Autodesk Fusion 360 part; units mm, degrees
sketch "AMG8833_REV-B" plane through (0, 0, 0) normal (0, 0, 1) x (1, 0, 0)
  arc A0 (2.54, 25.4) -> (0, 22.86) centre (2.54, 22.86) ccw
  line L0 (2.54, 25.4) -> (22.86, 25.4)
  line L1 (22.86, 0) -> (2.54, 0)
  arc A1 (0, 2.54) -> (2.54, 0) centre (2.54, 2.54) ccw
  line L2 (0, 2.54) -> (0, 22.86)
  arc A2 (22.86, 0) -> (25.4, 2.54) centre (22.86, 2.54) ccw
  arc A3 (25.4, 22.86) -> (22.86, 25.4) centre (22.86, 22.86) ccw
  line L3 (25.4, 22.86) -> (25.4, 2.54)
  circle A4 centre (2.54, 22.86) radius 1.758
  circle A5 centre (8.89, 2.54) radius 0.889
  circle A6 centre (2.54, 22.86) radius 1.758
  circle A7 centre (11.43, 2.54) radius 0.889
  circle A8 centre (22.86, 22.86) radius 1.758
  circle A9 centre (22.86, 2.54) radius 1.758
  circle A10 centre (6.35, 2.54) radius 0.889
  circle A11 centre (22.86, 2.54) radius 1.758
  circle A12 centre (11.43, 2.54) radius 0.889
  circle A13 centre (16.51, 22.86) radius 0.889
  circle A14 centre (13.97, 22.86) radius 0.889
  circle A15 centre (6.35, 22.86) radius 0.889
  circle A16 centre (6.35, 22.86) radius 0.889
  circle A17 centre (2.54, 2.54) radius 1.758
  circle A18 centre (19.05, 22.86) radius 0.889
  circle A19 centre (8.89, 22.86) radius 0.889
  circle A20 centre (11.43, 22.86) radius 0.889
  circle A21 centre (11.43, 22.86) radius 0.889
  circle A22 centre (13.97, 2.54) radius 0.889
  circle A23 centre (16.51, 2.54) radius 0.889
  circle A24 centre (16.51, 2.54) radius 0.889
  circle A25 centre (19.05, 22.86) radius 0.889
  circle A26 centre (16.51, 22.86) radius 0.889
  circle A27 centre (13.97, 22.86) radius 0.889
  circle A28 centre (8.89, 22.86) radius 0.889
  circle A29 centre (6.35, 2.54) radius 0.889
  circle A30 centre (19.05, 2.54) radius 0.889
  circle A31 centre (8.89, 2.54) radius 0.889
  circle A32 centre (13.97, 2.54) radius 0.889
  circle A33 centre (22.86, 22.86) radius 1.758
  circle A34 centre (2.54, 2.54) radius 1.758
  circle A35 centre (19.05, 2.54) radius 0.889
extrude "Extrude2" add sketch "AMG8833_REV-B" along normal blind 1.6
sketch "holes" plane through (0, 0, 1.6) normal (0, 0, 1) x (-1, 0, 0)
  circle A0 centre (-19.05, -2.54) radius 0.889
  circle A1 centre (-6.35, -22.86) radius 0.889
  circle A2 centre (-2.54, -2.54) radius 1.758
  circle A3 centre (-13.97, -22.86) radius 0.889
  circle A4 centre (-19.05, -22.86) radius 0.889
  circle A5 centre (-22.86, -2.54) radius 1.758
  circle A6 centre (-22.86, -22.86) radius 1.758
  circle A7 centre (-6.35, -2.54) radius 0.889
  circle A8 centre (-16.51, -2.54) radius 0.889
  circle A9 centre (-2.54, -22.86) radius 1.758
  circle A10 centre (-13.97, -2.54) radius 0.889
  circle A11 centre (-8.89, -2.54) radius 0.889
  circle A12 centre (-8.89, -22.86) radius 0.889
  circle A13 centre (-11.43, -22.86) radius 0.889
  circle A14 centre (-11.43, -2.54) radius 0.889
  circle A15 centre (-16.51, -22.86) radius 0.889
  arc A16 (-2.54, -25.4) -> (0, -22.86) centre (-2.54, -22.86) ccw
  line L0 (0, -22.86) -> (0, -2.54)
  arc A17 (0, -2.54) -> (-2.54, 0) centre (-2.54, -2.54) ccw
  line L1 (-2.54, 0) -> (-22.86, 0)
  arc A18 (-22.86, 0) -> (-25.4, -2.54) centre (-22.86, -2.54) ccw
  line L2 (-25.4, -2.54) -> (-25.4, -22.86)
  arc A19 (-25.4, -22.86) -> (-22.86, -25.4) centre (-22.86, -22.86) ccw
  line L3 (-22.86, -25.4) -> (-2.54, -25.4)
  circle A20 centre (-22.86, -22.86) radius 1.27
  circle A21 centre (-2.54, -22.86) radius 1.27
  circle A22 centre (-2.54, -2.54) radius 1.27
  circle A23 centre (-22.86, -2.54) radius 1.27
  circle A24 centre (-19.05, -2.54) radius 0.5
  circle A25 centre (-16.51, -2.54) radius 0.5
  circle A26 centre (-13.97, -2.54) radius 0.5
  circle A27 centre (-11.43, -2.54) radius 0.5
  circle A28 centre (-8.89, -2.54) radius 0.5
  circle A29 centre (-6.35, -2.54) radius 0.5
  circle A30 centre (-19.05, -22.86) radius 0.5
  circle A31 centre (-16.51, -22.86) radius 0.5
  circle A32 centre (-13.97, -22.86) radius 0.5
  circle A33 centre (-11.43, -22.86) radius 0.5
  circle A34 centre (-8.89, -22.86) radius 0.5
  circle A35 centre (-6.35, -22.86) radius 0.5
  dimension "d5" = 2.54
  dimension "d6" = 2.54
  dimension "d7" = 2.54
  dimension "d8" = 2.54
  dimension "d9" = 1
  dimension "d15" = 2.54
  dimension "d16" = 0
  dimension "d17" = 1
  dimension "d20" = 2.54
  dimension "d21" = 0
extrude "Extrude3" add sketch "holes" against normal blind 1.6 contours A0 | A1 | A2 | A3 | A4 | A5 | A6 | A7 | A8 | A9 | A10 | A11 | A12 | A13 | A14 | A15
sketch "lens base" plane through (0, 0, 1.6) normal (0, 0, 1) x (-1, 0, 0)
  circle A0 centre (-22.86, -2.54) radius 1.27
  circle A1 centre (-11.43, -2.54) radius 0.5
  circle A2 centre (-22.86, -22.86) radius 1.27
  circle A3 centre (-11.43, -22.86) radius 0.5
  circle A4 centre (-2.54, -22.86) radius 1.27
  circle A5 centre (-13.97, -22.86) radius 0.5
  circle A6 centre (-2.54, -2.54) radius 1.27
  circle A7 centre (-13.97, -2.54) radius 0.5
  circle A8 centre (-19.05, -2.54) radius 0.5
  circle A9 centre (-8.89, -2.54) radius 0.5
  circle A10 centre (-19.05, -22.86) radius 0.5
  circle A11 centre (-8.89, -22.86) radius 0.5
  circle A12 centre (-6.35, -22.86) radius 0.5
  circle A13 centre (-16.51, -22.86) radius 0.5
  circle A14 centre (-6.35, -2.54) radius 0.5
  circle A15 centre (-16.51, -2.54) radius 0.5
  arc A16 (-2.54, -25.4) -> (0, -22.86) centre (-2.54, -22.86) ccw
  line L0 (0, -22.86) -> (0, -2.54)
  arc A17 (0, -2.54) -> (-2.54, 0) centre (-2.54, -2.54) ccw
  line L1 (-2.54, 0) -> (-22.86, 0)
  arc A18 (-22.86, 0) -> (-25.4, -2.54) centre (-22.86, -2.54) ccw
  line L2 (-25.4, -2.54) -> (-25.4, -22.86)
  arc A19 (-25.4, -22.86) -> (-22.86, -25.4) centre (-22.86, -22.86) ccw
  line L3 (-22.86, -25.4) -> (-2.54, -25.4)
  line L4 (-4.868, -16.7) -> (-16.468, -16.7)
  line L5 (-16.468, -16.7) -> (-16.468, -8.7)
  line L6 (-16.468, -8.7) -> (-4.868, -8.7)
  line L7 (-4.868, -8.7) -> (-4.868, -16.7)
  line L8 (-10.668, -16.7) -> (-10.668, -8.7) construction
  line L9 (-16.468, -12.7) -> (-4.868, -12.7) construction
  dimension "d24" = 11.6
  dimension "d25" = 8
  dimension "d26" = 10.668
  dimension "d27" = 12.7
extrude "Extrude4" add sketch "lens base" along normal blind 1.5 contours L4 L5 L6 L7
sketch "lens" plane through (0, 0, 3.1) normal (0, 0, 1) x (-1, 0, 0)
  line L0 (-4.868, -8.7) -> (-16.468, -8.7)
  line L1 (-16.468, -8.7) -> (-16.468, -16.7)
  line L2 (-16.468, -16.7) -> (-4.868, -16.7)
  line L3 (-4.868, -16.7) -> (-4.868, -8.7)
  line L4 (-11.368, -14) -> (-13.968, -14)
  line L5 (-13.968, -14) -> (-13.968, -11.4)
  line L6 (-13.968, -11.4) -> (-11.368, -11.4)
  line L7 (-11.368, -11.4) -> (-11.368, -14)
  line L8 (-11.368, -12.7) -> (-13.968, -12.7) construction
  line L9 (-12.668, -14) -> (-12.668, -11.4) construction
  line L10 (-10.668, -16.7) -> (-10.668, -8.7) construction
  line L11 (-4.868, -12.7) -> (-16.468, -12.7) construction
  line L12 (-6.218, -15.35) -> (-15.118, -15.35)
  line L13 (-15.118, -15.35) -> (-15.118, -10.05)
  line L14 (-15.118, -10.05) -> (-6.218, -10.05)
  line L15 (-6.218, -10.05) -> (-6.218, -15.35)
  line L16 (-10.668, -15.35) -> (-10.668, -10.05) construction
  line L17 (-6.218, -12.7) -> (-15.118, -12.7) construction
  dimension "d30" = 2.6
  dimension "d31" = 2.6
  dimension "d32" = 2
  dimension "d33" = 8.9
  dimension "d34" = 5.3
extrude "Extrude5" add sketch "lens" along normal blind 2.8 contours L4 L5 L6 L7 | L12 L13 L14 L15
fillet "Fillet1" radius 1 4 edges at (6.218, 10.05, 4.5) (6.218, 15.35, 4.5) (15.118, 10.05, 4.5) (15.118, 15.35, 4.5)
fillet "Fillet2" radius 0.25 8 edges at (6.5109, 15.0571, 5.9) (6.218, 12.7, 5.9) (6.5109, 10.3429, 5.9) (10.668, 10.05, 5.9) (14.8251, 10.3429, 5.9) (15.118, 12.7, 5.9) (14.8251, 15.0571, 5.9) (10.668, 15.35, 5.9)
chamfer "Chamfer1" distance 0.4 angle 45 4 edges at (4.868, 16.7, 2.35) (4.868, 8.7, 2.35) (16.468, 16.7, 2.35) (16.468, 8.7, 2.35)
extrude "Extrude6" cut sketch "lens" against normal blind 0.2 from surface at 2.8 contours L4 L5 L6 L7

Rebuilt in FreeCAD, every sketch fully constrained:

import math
import FreeCAD as App
import Part
import Sketcher
from FreeCAD import Vector
Q = App.Units.Quantity


def edges_at(feature, points):
    """Names of the edges that pass closest to the given points."""
    edges = feature.Shape.Edges
    near = lambda p: min(range(len(edges)), key=lambda i: edges[i].distToShape(Part.Vertex(*p))[0])
    return sorted({f"Edge{near(p) + 1}" for p in points})


def add_polygon(sketch, points):
    """Adds a closed chain of lines whose ends are joined by coincident constraints."""
    first, n = sketch.GeometryCount, len(points)
    for a, b in zip(points, points[1:] + points[:1]):
        sketch.addGeometry(Part.LineSegment(App.Vector(*a, 0), App.Vector(*b, 0)), False)
    for i in range(n):
        sketch.addConstraint(Sketcher.Constraint("Coincident", first + i, 2, first + (i + 1) % n, 1))

doc = App.newDocument("Part")
body = doc.addObject("PartDesign::Body", "Body")

# Sketch on XY plane
sketch1 = doc.addObject("Sketcher::SketchObject", "Sketch")
body.addObject(sketch1)
sketch1.AttachmentSupport = (doc.XY_Plane, [""])
sketch1.MapMode = "FlatFace"
sketch1.addGeometry([
    Part.LineSegment(Vector(22.9, 25.4, 0), Vector(2.5, 25.4, 0)),  # 0
    Part.ArcOfCircle(Part.Circle(Vector(2.5, 22.9, 0), Vector(0, 0, 1), 2.5), math.radians(90), math.radians(180)),  # 1
    Part.LineSegment(Vector(0, 22.9, 0), Vector(0, 2.5, 0)),  # 2
    Part.ArcOfCircle(Part.Circle(Vector(2.5, 2.5, 0), Vector(0, 0, 1), 2.5), math.radians(180), math.radians(270)),  # 3
    Part.LineSegment(Vector(2.5, 0, 0), Vector(22.9, 0, 0)),  # 4
    Part.ArcOfCircle(Part.Circle(Vector(22.9, 2.5, 0), Vector(0, 0, 1), 2.5), math.radians(-90), math.radians(0)),  # 5
    Part.LineSegment(Vector(25.4, 2.5, 0), Vector(25.4, 22.9, 0)),  # 6
    Part.ArcOfCircle(Part.Circle(Vector(22.9, 22.9, 0), Vector(0, 0, 1), 2.5), math.radians(0), math.radians(90)),  # 7
    Part.Circle(Vector(2.5, 2.5, 0), Vector(0, 0, 1), 1.8),  # 8
    Part.Circle(Vector(6.3, 2.5, 0), Vector(0, 0, 1), 0.9),  # 9
    Part.Circle(Vector(8.9, 2.5, 0), Vector(0, 0, 1), 0.9),  # 10
    Part.Circle(Vector(11.4, 2.5, 0), Vector(0, 0, 1), 0.9),  # 11
    Part.Circle(Vector(14, 2.5, 0), Vector(0, 0, 1), 0.9),  # 12
    Part.Circle(Vector(16.5, 2.5, 0), Vector(0, 0, 1), 0.9),  # 13
    Part.Circle(Vector(19.1, 2.5, 0), Vector(0, 0, 1), 0.9),  # 14
    Part.Circle(Vector(22.9, 2.5, 0), Vector(0, 0, 1), 1.8),  # 15
    Part.Circle(Vector(2.5, 22.9, 0), Vector(0, 0, 1), 1.8),  # 16
    Part.Circle(Vector(6.3, 22.9, 0), Vector(0, 0, 1), 0.9),  # 17
    Part.Circle(Vector(8.9, 22.9, 0), Vector(0, 0, 1), 0.9),  # 18
    Part.Circle(Vector(11.4, 22.9, 0), Vector(0, 0, 1), 0.9),  # 19
    Part.Circle(Vector(14, 22.9, 0), Vector(0, 0, 1), 0.9),  # 20
    Part.Circle(Vector(16.5, 22.9, 0), Vector(0, 0, 1), 0.9),  # 21
    Part.Circle(Vector(19.1, 22.9, 0), Vector(0, 0, 1), 0.9),  # 22
    Part.Circle(Vector(22.9, 22.9, 0), Vector(0, 0, 1), 1.8),  # 23
], False)
sketch1.addConstraint([
    Sketcher.Constraint("Tangent", 0, 2, 1, 1),
    Sketcher.Constraint("Tangent", 1, 2, 2, 1),
    Sketcher.Constraint("Tangent", 2, 2, 3, 1),
    Sketcher.Constraint("Tangent", 3, 2, 4, 1),
    Sketcher.Constraint("Tangent", 4, 2, 5, 1),
    Sketcher.Constraint("Tangent", 5, 2, 6, 1),
    Sketcher.Constraint("Tangent", 6, 2, 7, 1),
    Sketcher.Constraint("Tangent", 7, 2, 0, 1),
    Sketcher.Constraint("Horizontal", 0),
    Sketcher.Constraint("Vertical", 2),
    Sketcher.Constraint("Horizontal", 4),
    Sketcher.Constraint("Vertical", 6),
    Sketcher.Constraint("Coincident", 8, 3, 3, 3),
    Sketcher.Constraint("Coincident", 15, 3, 5, 3),
    Sketcher.Constraint("Coincident", 16, 3, 1, 3),
    Sketcher.Constraint("Coincident", 23, 3, 7, 3),
    Sketcher.Constraint("Equal", 1, 3),
    Sketcher.Constraint("Equal", 3, 5),
    Sketcher.Constraint("Equal", 5, 7),
    Sketcher.Constraint("Equal", 9, 10),
    Sketcher.Constraint("Equal", 10, 11),
    Sketcher.Constraint("Equal", 11, 12),
    Sketcher.Constraint("Equal", 12, 13),
    Sketcher.Constraint("Equal", 13, 14),
    Sketcher.Constraint("Equal", 8, 15),
    Sketcher.Constraint("Equal", 15, 16),
    Sketcher.Constraint("Equal", 14, 17),
    Sketcher.Constraint("Equal", 17, 18),
    Sketcher.Constraint("Equal", 18, 19),
    Sketcher.Constraint("Equal", 19, 20),
    Sketcher.Constraint("Equal", 20, 21),
    Sketcher.Constraint("Equal", 21, 22),
    Sketcher.Constraint("Equal", 16, 23),
    Sketcher.Constraint("PointOnObject", 1, 2, -2),
    Sketcher.Constraint("PointOnObject", 3, 2, -1),
    Sketcher.Constraint("Horizontal", 8, 3, 9, 3),
    Sketcher.Constraint("Horizontal", 9, 3, 10, 3),
    Sketcher.Constraint("Horizontal", 10, 3, 11, 3),
    Sketcher.Constraint("Horizontal", 11, 3, 12, 3),
    Sketcher.Constraint("Horizontal", 12, 3, 13, 3),
    Sketcher.Constraint("Horizontal", 13, 3, 14, 3),
    Sketcher.Constraint("Horizontal", 16, 3, 17, 3),
    Sketcher.Constraint("Horizontal", 17, 3, 18, 3),
    Sketcher.Constraint("Horizontal", 18, 3, 19, 3),
    Sketcher.Constraint("Horizontal", 19, 3, 20, 3),
    Sketcher.Constraint("Horizontal", 20, 3, 21, 3),
    Sketcher.Constraint("Horizontal", 21, 3, 22, 3),
    Sketcher.Constraint("Vertical", 9, 3, 17, 3),
    Sketcher.Constraint("Vertical", 10, 3, 18, 3),
    Sketcher.Constraint("Vertical", 11, 3, 19, 3),
    Sketcher.Constraint("Vertical", 12, 3, 20, 3),
    Sketcher.Constraint("Vertical", 13, 3, 21, 3),
    Sketcher.Constraint("Vertical", 14, 3, 22, 3),
    Sketcher.Constraint("Equal", 4, 2),
    Sketcher.Constraint("Radius", 1, Q("2.54 mm")),
    Sketcher.Constraint("Diameter", 8, Q("3.516 mm")),
    Sketcher.Constraint("Diameter", 9, Q("1.778 mm")),
    Sketcher.Constraint("DistanceX", 0, 2, 0, 1, Q("20.32 mm")),
    Sketcher.Constraint("DistanceX", -1, 1, 9, 3, Q("6.35 mm")),
    Sketcher.Constraint("DistanceX", -1, 1, 10, 3, Q("8.89 mm")),
    Sketcher.Constraint("DistanceX", -1, 1, 11, 3, Q("11.43 mm")),
    Sketcher.Constraint("DistanceX", -1, 1, 12, 3, Q("13.97 mm")),
    Sketcher.Constraint("DistanceX", -1, 1, 13, 3, Q("16.51 mm")),
    Sketcher.Constraint("DistanceX", -1, 1, 14, 3, Q("19.05 mm")),
])
pad1 = doc.addObject("PartDesign::Pad", "Pad")
body.addObject(pad1)
pad1.Profile = sketch1
pad1.Length = 1.6

# Sketch on XY plane
sketch2 = doc.addObject("Sketcher::SketchObject", "Sketch001")
body.addObject(sketch2)
sketch2.AttachmentSupport = (doc.XY_Plane, [""])
sketch2.MapMode = "FlatFace"
sketch2.AttachmentOffset = App.Placement(Vector(0, 0, 1.6), App.Rotation())
sketch2.addGeometry([
    Part.Circle(Vector(19.1, 2.5, 0), Vector(0, 0, 1), 0.9),  # 0
    Part.Circle(Vector(19.1, 2.5, 0), Vector(0, 0, 1), 0.5),  # 1
    Part.Circle(Vector(6.3, 22.9, 0), Vector(0, 0, 1), 0.9),  # 2
    Part.Circle(Vector(6.3, 22.9, 0), Vector(0, 0, 1), 0.5),  # 3
    Part.Circle(Vector(2.5, 2.5, 0), Vector(0, 0, 1), 1.8),  # 4
    Part.Circle(Vector(2.5, 2.5, 0), Vector(0, 0, 1), 1.3),  # 5
    Part.Circle(Vector(14, 22.9, 0), Vector(0, 0, 1), 0.9),  # 6
    Part.Circle(Vector(14, 22.9, 0), Vector(0, 0, 1), 0.5),  # 7
    Part.Circle(Vector(19.1, 22.9, 0), Vector(0, 0, 1), 0.9),  # 8
    Part.Circle(Vector(19.1, 22.9, 0), Vector(0, 0, 1), 0.5),  # 9
    Part.Circle(Vector(22.9, 2.5, 0), Vector(0, 0, 1), 1.8),  # 10
    Part.Circle(Vector(22.9, 2.5, 0), Vector(0, 0, 1), 1.3),  # 11
    Part.Circle(Vector(22.9, 22.9, 0), Vector(0, 0, 1), 1.8),  # 12
    Part.Circle(Vector(22.9, 22.9, 0), Vector(0, 0, 1), 1.3),  # 13
    Part.Circle(Vector(6.3, 2.5, 0), Vector(0, 0, 1), 0.9),  # 14
    Part.Circle(Vector(6.3, 2.5, 0), Vector(0, 0, 1), 0.5),  # 15
    Part.Circle(Vector(16.5, 2.5, 0), Vector(0, 0, 1), 0.9),  # 16
    Part.Circle(Vector(16.5, 2.5, 0), Vector(0, 0, 1), 0.5),  # 17
    Part.Circle(Vector(2.5, 22.9, 0), Vector(0, 0, 1), 1.8),  # 18
    Part.Circle(Vector(2.5, 22.9, 0), Vector(0, 0, 1), 1.3),  # 19
    Part.Circle(Vector(14, 2.5, 0), Vector(0, 0, 1), 0.9),  # 20
    Part.Circle(Vector(14, 2.5, 0), Vector(0, 0, 1), 0.5),  # 21
    Part.Circle(Vector(8.9, 2.5, 0), Vector(0, 0, 1), 0.9),  # 22
    Part.Circle(Vector(8.9, 2.5, 0), Vector(0, 0, 1), 0.5),  # 23
    Part.Circle(Vector(8.9, 22.9, 0), Vector(0, 0, 1), 0.9),  # 24
    Part.Circle(Vector(8.9, 22.9, 0), Vector(0, 0, 1), 0.5),  # 25
    Part.Circle(Vector(11.4, 22.9, 0), Vector(0, 0, 1), 0.9),  # 26
    Part.Circle(Vector(11.4, 22.9, 0), Vector(0, 0, 1), 0.5),  # 27
    Part.Circle(Vector(11.4, 2.5, 0), Vector(0, 0, 1), 0.9),  # 28
    Part.Circle(Vector(11.4, 2.5, 0), Vector(0, 0, 1), 0.5),  # 29
    Part.Circle(Vector(16.5, 22.9, 0), Vector(0, 0, 1), 0.9),  # 30
    Part.Circle(Vector(16.5, 22.9, 0), Vector(0, 0, 1), 0.5),  # 31
], False)
sketch2.addConstraint([
    Sketcher.Constraint("Coincident", 1, 3, 0, 3),
    Sketcher.Constraint("Coincident", 3, 3, 2, 3),
    Sketcher.Constraint("Coincident", 5, 3, 4, 3),
    Sketcher.Constraint("Coincident", 7, 3, 6, 3),
    Sketcher.Constraint("Coincident", 9, 3, 8, 3),
    Sketcher.Constraint("Coincident", 11, 3, 10, 3),
    Sketcher.Constraint("Coincident", 13, 3, 12, 3),
    Sketcher.Constraint("Coincident", 15, 3, 14, 3),
    Sketcher.Constraint("Coincident", 17, 3, 16, 3),
    Sketcher.Constraint("Coincident", 19, 3, 18, 3),
    Sketcher.Constraint("Coincident", 21, 3, 20, 3),
    Sketcher.Constraint("Coincident", 23, 3, 22, 3),
    Sketcher.Constraint("Coincident", 25, 3, 24, 3),
    Sketcher.Constraint("Coincident", 27, 3, 26, 3),
    Sketcher.Constraint("Coincident", 29, 3, 28, 3),
    Sketcher.Constraint("Coincident", 31, 3, 30, 3),
    Sketcher.Constraint("Equal", 0, 2),
    Sketcher.Constraint("Equal", 1, 3),
    Sketcher.Constraint("Equal", 2, 6),
    Sketcher.Constraint("Equal", 3, 7),
    Sketcher.Constraint("Equal", 6, 8),
    Sketcher.Constraint("Equal", 7, 9),
    Sketcher.Constraint("Equal", 4, 10),
    Sketcher.Constraint("Equal", 5, 11),
    Sketcher.Constraint("Equal", 10, 12),
    Sketcher.Constraint("Equal", 11, 13),
    Sketcher.Constraint("Equal", 8, 14),
    Sketcher.Constraint("Equal", 9, 15),
    Sketcher.Constraint("Equal", 14, 16),
    Sketcher.Constraint("Equal", 15, 17),
    Sketcher.Constraint("Equal", 12, 18),
    Sketcher.Constraint("Equal", 13, 19),
    Sketcher.Constraint("Equal", 16, 20),
    Sketcher.Constraint("Equal", 17, 21),
    Sketcher.Constraint("Equal", 20, 22),
    Sketcher.Constraint("Equal", 21, 23),
    Sketcher.Constraint("Equal", 22, 24),
    Sketcher.Constraint("Equal", 23, 25),
    Sketcher.Constraint("Equal", 24, 26),
    Sketcher.Constraint("Equal", 25, 27),
    Sketcher.Constraint("Equal", 26, 28),
    Sketcher.Constraint("Equal", 27, 29),
    Sketcher.Constraint("Equal", 28, 30),
    Sketcher.Constraint("Equal", 29, 31),
    Sketcher.Constraint("Horizontal", 1, 3, 4, 3),
    Sketcher.Constraint("Horizontal", 3, 3, 6, 3),
    Sketcher.Constraint("Horizontal", 7, 3, 8, 3),
    Sketcher.Constraint("Horizontal", 5, 3, 10, 3),
    Sketcher.Constraint("Horizontal", 9, 3, 12, 3),
    Sketcher.Constraint("Horizontal", 11, 3, 14, 3),
    Sketcher.Constraint("Horizontal", 15, 3, 16, 3),
    Sketcher.Constraint("Horizontal", 13, 3, 18, 3),
    Sketcher.Constraint("Horizontal", 17, 3, 20, 3),
    Sketcher.Constraint("Horizontal", 21, 3, 22, 3),
    Sketcher.Constraint("Horizontal", 19, 3, 24, 3),
    Sketcher.Constraint("Horizontal", 25, 3, 26, 3),
    Sketcher.Constraint("Horizontal", 23, 3, 28, 3),
    Sketcher.Constraint("Horizontal", 27, 3, 30, 3),
    Sketcher.Constraint("Vertical", 1, 3, 8, 3),
    Sketcher.Constraint("Vertical", 11, 3, 12, 3),
    Sketcher.Constraint("Vertical", 3, 3, 14, 3),
    Sketcher.Constraint("Vertical", 5, 3, 18, 3),
    Sketcher.Constraint("Vertical", 7, 3, 20, 3),
    Sketcher.Constraint("Vertical", 23, 3, 24, 3),
    Sketcher.Constraint("Vertical", 27, 3, 28, 3),
    Sketcher.Constraint("Vertical", 17, 3, 30, 3),
    Sketcher.Constraint("Diameter", 1, Q("1 mm")),
    Sketcher.Constraint("Diameter", 5, Q("2.54 mm")),
    Sketcher.Constraint("DistanceY", -1, 1, 0, 3, Q("2.54 mm")),
    Sketcher.Constraint("DistanceX", -1, 1, 4, 3, Q("2.54 mm")),
    Sketcher.Constraint("DistanceX", 16, 3, 0, 3, Q("2.54 mm")),
    Sketcher.Constraint("DistanceX", 20, 3, 16, 3, Q("2.54 mm")),
    Sketcher.Constraint("DistanceX", 14, 3, 22, 3, Q("2.54 mm")),
    Sketcher.Constraint("DistanceX", 24, 3, 26, 3, Q("2.54 mm")),
    Sketcher.Constraint("DistanceX", 26, 3, 6, 3, Q("2.54 mm")),
    Sketcher.Constraint("Diameter", 0, Q("1.778 mm")),
    Sketcher.Constraint("Diameter", 4, Q("3.516 mm")),
    Sketcher.Constraint("DistanceX", -1, 1, 0, 3, Q("19.05 mm")),
    Sketcher.Constraint("DistanceY", -1, 1, 2, 3, Q("22.86 mm")),
    Sketcher.Constraint("DistanceX", -1, 1, 10, 3, Q("22.86 mm")),
])
pad2 = doc.addObject("PartDesign::Pad", "Pad001")
body.addObject(pad2)
pad2.Profile = sketch2
pad2.Length = 1.6
pad2.Reversed = True

# Sketch on XY plane
sketch3 = doc.addObject("Sketcher::SketchObject", "Sketch002")
body.addObject(sketch3)
sketch3.AttachmentSupport = (doc.XY_Plane, [""])
sketch3.MapMode = "FlatFace"
sketch3.AttachmentOffset = App.Placement(Vector(0, 0, 1.6), App.Rotation())
add_polygon(sketch3, [(16, 17), (5, 17), (5, 9), (16, 9)])  # lines 0-3
sketch3.addConstraint([
    Sketcher.Constraint("Horizontal", 0),
    Sketcher.Constraint("Vertical", 1),
    Sketcher.Constraint("Horizontal", 2),
    Sketcher.Constraint("Vertical", 3),
    Sketcher.Constraint("DistanceY", 1, 2, 1, 1, Q("8 mm")),
    Sketcher.Constraint("DistanceX", 0, 2, 0, 1, Q("11.6 mm")),
    Sketcher.Constraint("DistanceY", -1, 1, 0, 2, Q("16.7 mm")),
    Sketcher.Constraint("DistanceX", -1, 1, 0, 2, Q("4.868 mm")),
])
pad3 = doc.addObject("PartDesign::Pad", "Pad002")
body.addObject(pad3)
pad3.Profile = sketch3
pad3.Length = 1.5

# Sketch on XY plane
sketch4 = doc.addObject("Sketcher::SketchObject", "Sketch003")
body.addObject(sketch4)
sketch4.AttachmentSupport = (doc.XY_Plane, [""])
sketch4.MapMode = "FlatFace"
sketch4.AttachmentOffset = App.Placement(Vector(0, 0, 3.1), App.Rotation())
add_polygon(sketch4, [(15, 15), (6, 15), (6, 10), (15, 10)])  # lines 0-3
sketch4.addConstraint([
    Sketcher.Constraint("Horizontal", 0),
    Sketcher.Constraint("Vertical", 1),
    Sketcher.Constraint("Horizontal", 2),
    Sketcher.Constraint("Vertical", 3),
    Sketcher.Constraint("DistanceX", 0, 2, 0, 1, Q("8.9 mm")),
    Sketcher.Constraint("DistanceY", 1, 2, 1, 1, Q("5.3 mm")),
    Sketcher.Constraint("DistanceY", -1, 1, 0, 2, Q("15.35 mm")),
    Sketcher.Constraint("DistanceX", -1, 1, 0, 2, Q("6.218 mm")),
])
pad4 = doc.addObject("PartDesign::Pad", "Pad003")
body.addObject(pad4)
pad4.Profile = sketch4
pad4.Length = 2.8
doc.recompute()

fillet = doc.addObject("PartDesign::Fillet", "Fillet")
body.addObject(fillet)
fillet.Base = (pad4, edges_at(pad4, [
    (6.218, 10.05, 4.5),
    (6.218, 15.35, 4.5),
    (15.118, 10.05, 4.5),
    (15.118, 15.35, 4.5),
]))
fillet.Radius = 1
doc.recompute()

fillet2 = doc.addObject("PartDesign::Fillet", "Fillet001")
body.addObject(fillet2)
fillet2.Base = (fillet, edges_at(fillet, [
    (6.511, 15.057, 5.9),
    (6.218, 12.7, 5.9),
    (6.511, 10.343, 5.9),
    (10.668, 10.05, 5.9),
    (14.825, 10.343, 5.9),
    (15.118, 12.7, 5.9),
    (14.825, 15.057, 5.9),
    (10.668, 15.35, 5.9),
]))
fillet2.Radius = 0.25
doc.recompute()

chamfer = doc.addObject("PartDesign::Chamfer", "Chamfer")
body.addObject(chamfer)
chamfer.Base = (fillet2, edges_at(fillet2, [
    (4.868, 16.7, 2.35),
    (4.868, 8.7, 2.35),
    (16.468, 16.7, 2.35),
    (16.468, 8.7, 2.35),
]))
chamfer.Size = 0.4

# Sketch on XY plane
sketch5 = doc.addObject("Sketcher::SketchObject", "Sketch004")
body.addObject(sketch5)
sketch5.AttachmentSupport = (doc.XY_Plane, [""])
sketch5.MapMode = "FlatFace"
sketch5.AttachmentOffset = App.Placement(Vector(0, 0, 5.9), App.Rotation())
add_polygon(sketch5, [(14, 14), (11.4, 14), (11.4, 11.4), (14, 11.4)])  # lines 0-3
sketch5.addConstraint([
    Sketcher.Constraint("Horizontal", 0),
    Sketcher.Constraint("Vertical", 1),
    Sketcher.Constraint("Horizontal", 2),
    Sketcher.Constraint("Vertical", 3),
    Sketcher.Constraint("Equal", 2, 1),
    Sketcher.Constraint("DistanceX", 0, 2, 0, 1, Q("2.6 mm")),
    Sketcher.Constraint("DistanceY", -1, 1, 0, 2, Q("14 mm")),
    Sketcher.Constraint("DistanceX", -1, 1, 0, 2, Q("11.368 mm")),
])
pocket1 = doc.addObject("PartDesign::Pocket", "Pocket")
body.addObject(pocket1)
pocket1.Profile = sketch5
pocket1.Length = 0.2

doc.recompute()
